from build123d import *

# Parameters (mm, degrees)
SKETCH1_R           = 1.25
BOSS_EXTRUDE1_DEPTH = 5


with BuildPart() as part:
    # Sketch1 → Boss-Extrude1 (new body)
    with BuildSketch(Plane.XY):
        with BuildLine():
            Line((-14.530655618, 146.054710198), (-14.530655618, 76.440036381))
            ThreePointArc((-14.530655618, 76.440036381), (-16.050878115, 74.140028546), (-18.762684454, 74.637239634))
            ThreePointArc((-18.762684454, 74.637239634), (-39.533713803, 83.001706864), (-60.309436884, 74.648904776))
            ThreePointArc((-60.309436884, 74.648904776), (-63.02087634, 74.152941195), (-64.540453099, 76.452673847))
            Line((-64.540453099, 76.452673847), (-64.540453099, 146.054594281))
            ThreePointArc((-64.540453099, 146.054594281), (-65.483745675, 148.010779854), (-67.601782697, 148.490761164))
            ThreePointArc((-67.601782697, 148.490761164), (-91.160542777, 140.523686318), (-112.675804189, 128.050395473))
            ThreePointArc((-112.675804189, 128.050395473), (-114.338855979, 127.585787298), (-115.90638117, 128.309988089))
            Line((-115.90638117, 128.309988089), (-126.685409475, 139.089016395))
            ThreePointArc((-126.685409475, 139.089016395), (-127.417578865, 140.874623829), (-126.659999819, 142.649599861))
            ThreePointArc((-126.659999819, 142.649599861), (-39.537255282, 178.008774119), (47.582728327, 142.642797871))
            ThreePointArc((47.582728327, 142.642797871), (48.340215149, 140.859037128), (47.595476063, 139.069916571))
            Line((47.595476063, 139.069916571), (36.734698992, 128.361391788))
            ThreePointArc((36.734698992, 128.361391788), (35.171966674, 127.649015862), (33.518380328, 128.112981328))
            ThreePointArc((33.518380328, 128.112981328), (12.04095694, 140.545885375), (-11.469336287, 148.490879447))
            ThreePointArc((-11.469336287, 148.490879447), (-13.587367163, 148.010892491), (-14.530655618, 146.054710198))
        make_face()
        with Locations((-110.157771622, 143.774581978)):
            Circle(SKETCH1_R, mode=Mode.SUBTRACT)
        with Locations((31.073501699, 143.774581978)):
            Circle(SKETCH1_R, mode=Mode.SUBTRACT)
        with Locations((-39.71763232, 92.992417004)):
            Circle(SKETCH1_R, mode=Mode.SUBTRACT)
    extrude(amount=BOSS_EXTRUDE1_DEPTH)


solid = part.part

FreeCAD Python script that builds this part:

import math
import FreeCAD as App
import Part
import Sketcher

V = App.Vector
Q = App.Units.Quantity

doc = App.newDocument("Part")
body = doc.addObject("PartDesign::Body", "Body")

# Sketch on XY plane
sketch1 = body.newObject("Sketcher::SketchObject", "Sketch")
sketch1.AttachmentSupport = (doc.getObject("XY_Plane"), [""])
sketch1.MapMode = "FlatFace"
sketch1.addGeometry([
    Part.LineSegment(V(-14.530656, 76.440036, 0), V(-14.530656, 146.05471, 0)),  # 0
    Part.ArcOfCircle(Part.Circle(V(-12.030656, 146.05471, 0), V(0, 0, 1), 2.5), math.radians(77.024891), math.radians(180)),  # 1
    Part.ArcOfCircle(Part.Circle(V(-39.535303, 26.682417, 0), V(0, 0, 1), 125), math.radians(54.237305), math.radians(77.024891)),  # 2
    Part.ArcOfCircle(Part.Circle(V(34.979454, 130.141593, 0), V(0, 0, 1), 2.5), math.radians(-125.762695), math.radians(-45.40443)),  # 3
    Part.LineSegment(V(36.734699, 128.361392, 0), V(47.595476, 139.069917, 0)),  # 4
    Part.ArcOfCircle(Part.Circle(V(45.840231, 140.850117, 0), V(0, 0, 1), 2.5), math.radians(-45.40443), math.radians(45.813281)),  # 5
    Part.ArcOfCircle(Part.Circle(V(-39.542135, 53.008774, 0), V(0, 0, 1), 125), math.radians(45.813281), math.radians(134.182246)),  # 6
    Part.ArcOfCircle(Part.Circle(V(-124.917643, 140.856783, 0), V(0, 0, 1), 2.5), math.radians(134.182246), math.radians(225)),  # 7
    Part.LineSegment(V(-126.685409, 139.089016, 0), V(-115.906381, 128.309988, 0)),  # 8
    Part.ArcOfCircle(Part.Circle(V(-114.138614, 130.077755, 0), V(0, 0, 1), 2.5), math.radians(-135), math.radians(-54.188249)),  # 9
    Part.ArcOfCircle(Part.Circle(V(-39.535303, 26.682417, 0), V(0, 0, 1), 125), math.radians(102.97535), math.radians(125.811751)),  # 10
    Part.ArcOfCircle(Part.Circle(V(-67.040453, 146.054594, 0), V(0, 0, 1), 2.5), math.radians(0), math.radians(102.97535)),  # 11
    Part.LineSegment(V(-64.540453, 146.054594, 0), V(-64.540453, 76.452674, 0)),  # 12
    Part.ArcOfCircle(Part.Circle(V(-62.040453, 76.452674, 0), V(0, 0, 1), 2.5), math.radians(180), math.radians(313.820906)),  # 13
    Part.ArcOfCircle(Part.Circle(V(-39.542135, 53.008774, 0), V(0, 0, 1), 29.992934), math.radians(46.14692), math.radians(133.820906)),  # 14
    Part.ArcOfCircle(Part.Circle(V(-17.030656, 76.440036, 0), V(0, 0, 1), 2.5), math.radians(-133.85308), math.radians(0)),  # 15
    Part.Circle(V(-39.717632, 92.992417, 0), V(0, 0, 1), 1.25),  # 16
    Part.Circle(V(31.073502, 143.774582, 0), V(0, 0, 1), 1.25),  # 17
    Part.Circle(V(-110.157772, 143.774582, 0), V(0, 0, 1), 1.25),  # 18
], False)
sketch1.addConstraint([
    Sketcher.Constraint("Tangent", 0, 2, 1, 2),
    Sketcher.Constraint("Tangent", 1, 1, 2, 2),
    Sketcher.Constraint("Tangent", 2, 1, 3, 1),
    Sketcher.Constraint("Tangent", 3, 2, 4, 1),
    Sketcher.Constraint("Tangent", 4, 2, 5, 1),
    Sketcher.Constraint("Tangent", 5, 2, 6, 1),
    Sketcher.Constraint("Tangent", 6, 2, 7, 1),
    Sketcher.Constraint("Tangent", 7, 2, 8, 1),
    Sketcher.Constraint("Tangent", 8, 2, 9, 1),
    Sketcher.Constraint("Tangent", 9, 2, 10, 2),
    Sketcher.Constraint("Tangent", 10, 1, 11, 2),
    Sketcher.Constraint("Tangent", 11, 1, 12, 1),
    Sketcher.Constraint("Tangent", 12, 2, 13, 1),
    Sketcher.Constraint("Tangent", 13, 2, 14, 2),
    Sketcher.Constraint("Tangent", 14, 1, 15, 1),
    Sketcher.Constraint("Tangent", 15, 2, 0, 1),
    Sketcher.Constraint("Vertical", 0),
    Sketcher.Constraint("Vertical", 12),
    Sketcher.Constraint("Coincident", 10, 3, 2, 3),
    Sketcher.Constraint("Coincident", 14, 3, 6, 3),
    Sketcher.Constraint("Equal", 1, 3),
    Sketcher.Constraint("Equal", 3, 5),
    Sketcher.Constraint("Equal", 2, 6),
    Sketcher.Constraint("Equal", 5, 7),
    Sketcher.Constraint("Equal", 7, 9),
    Sketcher.Constraint("Equal", 6, 10),
    Sketcher.Constraint("Equal", 9, 11),
    Sketcher.Constraint("Equal", 11, 13),
    Sketcher.Constraint("Equal", 13, 15),
    Sketcher.Constraint("Equal", 16, 17),
    Sketcher.Constraint("Equal", 17, 18),
    Sketcher.Constraint("Horizontal", 17, 3, 18, 3),
    Sketcher.Constraint("Radius", 2, 125.0),
    Sketcher.Constraint("Diameter", 16, 2.5),
    Sketcher.Constraint("Radius", 1, 2.5),
    Sketcher.Constraint("Angle", 8, Q("-45 deg")),
    Sketcher.Constraint("DistanceX", 6, 2, -1, 1, 126.66),
    Sketcher.Constraint("Radius", 14, 29.992934),
    Sketcher.Constraint("DistanceY", 3, 3, 11, 3, 15.913002),
    Sketcher.Constraint("DistanceY", 12, 2, 12, 1, 69.60192),
    Sketcher.Constraint("DistanceX", -1, 1, 17, 3, 31.073502),
    Sketcher.Constraint("DistanceX", -1, 1, 3, 2, 36.734699),
    Sketcher.Constraint("DistanceY", -1, 1, 6, 2, 142.6496),
    Sketcher.Constraint("DistanceY", 2, 3, 5, 3, 114.1677),
    Sketcher.Constraint("DistanceY", 6, 3, 13, 3, 23.4439),
    Sketcher.Constraint("DistanceY", 7, 3, 18, 3, 2.917799),
    Sketcher.Constraint("DistanceY", 2, 1, 17, 3, 15.661601),
    Sketcher.Constraint("DistanceY", 0, 1, 0, 2, 69.614674),
    Sketcher.Constraint("DistanceX", 18, 3, -1, 1, 110.157772),
    Sketcher.Constraint("DistanceX", 13, 3, 16, 3, 22.322821),
    Sketcher.Constraint("DistanceY", 15, 3, 16, 3, 16.552381),
])
pad1 = body.newObject("PartDesign::Pad", "Pad")
pad1.Profile = sketch1
pad1.Length = 5

doc.recompute()
